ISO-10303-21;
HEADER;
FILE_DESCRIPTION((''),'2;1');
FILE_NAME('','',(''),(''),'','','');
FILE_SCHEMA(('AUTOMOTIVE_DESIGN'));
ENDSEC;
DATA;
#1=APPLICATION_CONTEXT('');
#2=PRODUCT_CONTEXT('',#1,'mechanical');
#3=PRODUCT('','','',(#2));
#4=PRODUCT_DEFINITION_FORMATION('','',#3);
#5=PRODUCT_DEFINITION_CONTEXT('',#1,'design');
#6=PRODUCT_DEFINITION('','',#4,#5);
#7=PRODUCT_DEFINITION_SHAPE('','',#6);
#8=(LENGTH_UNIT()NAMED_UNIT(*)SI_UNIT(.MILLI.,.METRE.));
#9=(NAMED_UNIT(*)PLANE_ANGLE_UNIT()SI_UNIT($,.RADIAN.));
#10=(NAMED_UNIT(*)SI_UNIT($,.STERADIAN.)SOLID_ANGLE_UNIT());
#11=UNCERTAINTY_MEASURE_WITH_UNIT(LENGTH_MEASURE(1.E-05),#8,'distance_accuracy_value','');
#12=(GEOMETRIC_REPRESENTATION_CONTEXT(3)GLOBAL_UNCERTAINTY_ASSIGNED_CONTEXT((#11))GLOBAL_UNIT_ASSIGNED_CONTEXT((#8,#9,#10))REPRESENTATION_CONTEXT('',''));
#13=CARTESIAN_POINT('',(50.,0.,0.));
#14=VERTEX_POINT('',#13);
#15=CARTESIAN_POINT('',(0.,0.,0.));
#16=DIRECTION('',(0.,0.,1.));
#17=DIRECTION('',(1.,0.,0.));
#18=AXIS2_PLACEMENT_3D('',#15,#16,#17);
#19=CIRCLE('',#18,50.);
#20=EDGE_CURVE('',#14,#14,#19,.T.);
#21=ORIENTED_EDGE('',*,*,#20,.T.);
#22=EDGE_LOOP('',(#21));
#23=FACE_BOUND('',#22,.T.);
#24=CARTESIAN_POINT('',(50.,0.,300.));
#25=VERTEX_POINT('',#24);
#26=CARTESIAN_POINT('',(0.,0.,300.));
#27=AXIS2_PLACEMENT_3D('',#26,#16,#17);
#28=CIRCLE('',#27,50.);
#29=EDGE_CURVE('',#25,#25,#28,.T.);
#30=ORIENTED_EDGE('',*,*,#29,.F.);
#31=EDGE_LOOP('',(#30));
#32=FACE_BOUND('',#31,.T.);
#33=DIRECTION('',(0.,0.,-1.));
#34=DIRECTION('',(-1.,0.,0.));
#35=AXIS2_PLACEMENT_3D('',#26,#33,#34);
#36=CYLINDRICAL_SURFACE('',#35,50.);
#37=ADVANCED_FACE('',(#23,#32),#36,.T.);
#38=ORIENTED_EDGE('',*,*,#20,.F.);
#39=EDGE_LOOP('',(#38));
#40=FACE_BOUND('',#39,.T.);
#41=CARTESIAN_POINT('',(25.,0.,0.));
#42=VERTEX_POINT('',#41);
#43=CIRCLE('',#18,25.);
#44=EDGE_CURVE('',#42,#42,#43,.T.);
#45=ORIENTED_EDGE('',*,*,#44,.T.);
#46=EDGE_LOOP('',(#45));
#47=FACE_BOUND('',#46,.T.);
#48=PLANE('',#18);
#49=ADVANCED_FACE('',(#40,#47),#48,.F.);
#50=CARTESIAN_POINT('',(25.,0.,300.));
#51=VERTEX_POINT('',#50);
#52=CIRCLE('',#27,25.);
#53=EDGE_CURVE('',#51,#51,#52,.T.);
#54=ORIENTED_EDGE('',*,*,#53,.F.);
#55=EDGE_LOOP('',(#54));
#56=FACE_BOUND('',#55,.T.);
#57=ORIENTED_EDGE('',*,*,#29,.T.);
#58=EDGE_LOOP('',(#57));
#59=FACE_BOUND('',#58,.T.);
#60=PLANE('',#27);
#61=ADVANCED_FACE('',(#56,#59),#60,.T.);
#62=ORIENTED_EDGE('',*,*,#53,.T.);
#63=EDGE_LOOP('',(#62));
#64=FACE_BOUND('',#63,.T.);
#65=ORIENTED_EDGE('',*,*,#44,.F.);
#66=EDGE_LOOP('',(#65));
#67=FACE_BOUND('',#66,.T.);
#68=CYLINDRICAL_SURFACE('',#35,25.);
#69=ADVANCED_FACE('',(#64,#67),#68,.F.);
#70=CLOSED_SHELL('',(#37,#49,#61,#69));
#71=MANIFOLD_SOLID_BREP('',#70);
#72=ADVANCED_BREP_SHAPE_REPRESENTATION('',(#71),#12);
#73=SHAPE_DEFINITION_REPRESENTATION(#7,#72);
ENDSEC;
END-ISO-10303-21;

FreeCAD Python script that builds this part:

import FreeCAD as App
import Part
import Sketcher

doc = App.newDocument("Part")
params = doc.addObject("Spreadsheet::Sheet", "Params")
for row, (alias, value) in enumerate([
    ("sketch1_diameter", "100 mm"),
    ("sketch1_diameter2", "50 mm"),
    ("pad1_length", "300 mm"),
], start=1):
    params.set(f"A{row}", alias)
    params.set(f"B{row}", "=" + value)
    params.setAlias(f"B{row}", alias)

body = doc.addObject("PartDesign::Body", "Body")

sketch1 = body.newObject("Sketcher::SketchObject", "Sketch")
sketch1.AttachmentSupport = (doc.getObject("XY_Plane"), [""])
sketch1.MapMode = "FlatFace"
sketch1.addGeometry(Part.Circle(App.Vector(0, 0, 0), App.Vector(0, 0, 1), 50), False)
sketch1.addGeometry(Part.Circle(App.Vector(0, 0, 0), App.Vector(0, 0, 1), 25), False)
sketch1.addConstraint(Sketcher.Constraint("Coincident", 0, 3, -1, 1))
sketch1.addConstraint(Sketcher.Constraint("Coincident", 1, 3, -1, 1))
sketch1.addConstraint(Sketcher.Constraint("Diameter", 0, 100.0))
sketch1.addConstraint(Sketcher.Constraint("Diameter", 1, 50.0))
sketch1.setExpression("Constraints[2]", "Params.sketch1_diameter")
sketch1.setExpression("Constraints[3]", "Params.sketch1_diameter2")
pad1 = body.newObject("PartDesign::Pad", "Pad")
pad1.Profile = sketch1
pad1.setExpression("Length", "Params.pad1_length")

doc.recompute()
